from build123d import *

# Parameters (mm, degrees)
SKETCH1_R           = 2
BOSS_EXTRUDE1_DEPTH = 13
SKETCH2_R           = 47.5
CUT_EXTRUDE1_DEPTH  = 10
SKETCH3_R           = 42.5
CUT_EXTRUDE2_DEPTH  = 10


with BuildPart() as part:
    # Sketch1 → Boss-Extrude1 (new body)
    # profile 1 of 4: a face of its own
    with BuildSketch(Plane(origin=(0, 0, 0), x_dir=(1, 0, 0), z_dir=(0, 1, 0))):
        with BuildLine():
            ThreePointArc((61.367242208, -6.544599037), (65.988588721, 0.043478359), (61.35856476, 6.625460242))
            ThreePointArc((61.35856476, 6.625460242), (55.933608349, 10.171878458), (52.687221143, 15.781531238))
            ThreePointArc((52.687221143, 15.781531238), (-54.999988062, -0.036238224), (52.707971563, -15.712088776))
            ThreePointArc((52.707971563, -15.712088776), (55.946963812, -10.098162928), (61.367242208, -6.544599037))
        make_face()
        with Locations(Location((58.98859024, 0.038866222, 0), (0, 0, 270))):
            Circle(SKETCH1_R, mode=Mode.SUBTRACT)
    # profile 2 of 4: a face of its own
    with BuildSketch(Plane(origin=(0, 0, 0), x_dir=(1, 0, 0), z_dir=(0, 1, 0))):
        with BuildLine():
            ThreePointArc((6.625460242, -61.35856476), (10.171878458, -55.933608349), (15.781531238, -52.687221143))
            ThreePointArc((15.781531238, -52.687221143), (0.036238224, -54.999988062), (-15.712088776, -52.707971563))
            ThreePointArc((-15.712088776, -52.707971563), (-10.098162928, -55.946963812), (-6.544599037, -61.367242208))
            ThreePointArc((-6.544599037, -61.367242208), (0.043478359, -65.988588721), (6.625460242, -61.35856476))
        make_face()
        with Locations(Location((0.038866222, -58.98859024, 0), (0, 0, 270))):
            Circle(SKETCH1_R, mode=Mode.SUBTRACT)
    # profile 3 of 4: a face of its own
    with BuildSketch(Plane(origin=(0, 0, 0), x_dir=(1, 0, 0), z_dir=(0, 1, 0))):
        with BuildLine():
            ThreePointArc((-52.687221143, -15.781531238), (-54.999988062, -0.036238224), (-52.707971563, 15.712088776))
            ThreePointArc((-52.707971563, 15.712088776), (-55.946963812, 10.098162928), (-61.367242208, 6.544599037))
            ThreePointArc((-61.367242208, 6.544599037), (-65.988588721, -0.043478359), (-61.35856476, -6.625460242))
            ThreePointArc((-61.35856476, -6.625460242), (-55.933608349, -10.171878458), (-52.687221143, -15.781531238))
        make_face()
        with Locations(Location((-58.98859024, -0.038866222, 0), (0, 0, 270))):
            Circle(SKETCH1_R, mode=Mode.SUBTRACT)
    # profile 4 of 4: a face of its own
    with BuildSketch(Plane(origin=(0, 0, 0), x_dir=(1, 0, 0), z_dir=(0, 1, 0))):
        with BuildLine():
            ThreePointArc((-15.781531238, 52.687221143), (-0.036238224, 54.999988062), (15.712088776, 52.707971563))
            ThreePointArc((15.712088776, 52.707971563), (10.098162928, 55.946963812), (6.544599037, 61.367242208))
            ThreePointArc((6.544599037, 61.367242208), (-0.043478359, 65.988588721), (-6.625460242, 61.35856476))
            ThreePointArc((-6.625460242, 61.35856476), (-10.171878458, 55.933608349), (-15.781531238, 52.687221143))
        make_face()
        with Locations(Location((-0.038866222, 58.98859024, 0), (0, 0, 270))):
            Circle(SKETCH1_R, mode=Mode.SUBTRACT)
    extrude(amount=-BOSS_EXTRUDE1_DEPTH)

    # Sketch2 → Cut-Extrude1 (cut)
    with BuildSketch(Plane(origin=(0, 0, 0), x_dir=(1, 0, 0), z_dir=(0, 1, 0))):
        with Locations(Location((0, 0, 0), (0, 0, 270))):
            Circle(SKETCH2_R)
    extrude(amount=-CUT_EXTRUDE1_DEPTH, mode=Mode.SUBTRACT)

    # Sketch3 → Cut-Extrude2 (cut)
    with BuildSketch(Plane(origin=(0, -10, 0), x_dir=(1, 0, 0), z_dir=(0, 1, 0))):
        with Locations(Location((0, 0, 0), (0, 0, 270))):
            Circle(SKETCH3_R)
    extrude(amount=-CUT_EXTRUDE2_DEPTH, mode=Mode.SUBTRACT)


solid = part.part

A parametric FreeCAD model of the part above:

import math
import FreeCAD as App
import Part
import Sketcher
from FreeCAD import Vector

doc = App.newDocument("Part")
body = doc.addObject("PartDesign::Body", "Body")

# Sketch on XZ plane
sketch1 = body.newObject("Sketcher::SketchObject", "Sketch")
sketch1.AttachmentSupport = (doc.getObject("XZ_Plane"), [""])
sketch1.MapMode = "FlatFace"
sketch1.addGeometry([
    Part.ArcOfCircle(Part.Circle(Vector(58.98859, -0.038866, 0), Vector(0, 0, 1), 7), math.radians(-70.21036), math.radians(70.134858)),  # 0
    Part.ArcOfCircle(Part.Circle(Vector(66.098514, -19.798648, 0), Vector(0, 0, 1), 14), math.radians(109.78964), math.radians(163.325337)),  # 1
    Part.ArcOfCircle(Part.Circle(Vector(0, 0, 0), Vector(0, 0, 1), 55), math.radians(-73.400839), math.radians(-16.674663)),  # 2
    Part.ArcOfCircle(Part.Circle(Vector(19.71153, -66.124546, 0), Vector(0, 0, 1), 14), math.radians(106.599161), math.radians(160.134858)),  # 3
    Part.ArcOfCircle(Part.Circle(Vector(-0.038866, -58.98859, 0), Vector(0, 0, 1), 7), math.radians(-160.21036), math.radians(-19.865142)),  # 4
    Part.ArcOfCircle(Part.Circle(Vector(-19.798648, -66.098514, 0), Vector(0, 0, 1), 14), math.radians(19.78964), math.radians(73.325337)),  # 5
    Part.ArcOfCircle(Part.Circle(Vector(0, 0, 0), Vector(0, 0, 1), 55), math.radians(-163.400839), math.radians(-106.674663)),  # 6
    Part.ArcOfCircle(Part.Circle(Vector(-66.124546, -19.71153, 0), Vector(0, 0, 1), 14), math.radians(16.599161), math.radians(70.134858)),  # 7
    Part.ArcOfCircle(Part.Circle(Vector(-58.98859, 0.038866, 0), Vector(0, 0, 1), 7), math.radians(109.78964), math.radians(250.134858)),  # 8
    Part.ArcOfCircle(Part.Circle(Vector(-66.098514, 19.798648, 0), Vector(0, 0, 1), 14), math.radians(-70.21036), math.radians(-16.674663)),  # 9
    Part.ArcOfCircle(Part.Circle(Vector(0, 0, 0), Vector(0, 0, 1), 55), math.radians(106.599161), math.radians(163.325337)),  # 10
    Part.ArcOfCircle(Part.Circle(Vector(-19.71153, 66.124546, 0), Vector(0, 0, 1), 14), math.radians(-73.400839), math.radians(-19.865142)),  # 11
    Part.ArcOfCircle(Part.Circle(Vector(0.038866, 58.98859, 0), Vector(0, 0, 1), 7), math.radians(19.78964), math.radians(160.134858)),  # 12
    Part.ArcOfCircle(Part.Circle(Vector(19.798648, 66.098514, 0), Vector(0, 0, 1), 14), math.radians(-160.21036), math.radians(-106.674663)),  # 13
    Part.ArcOfCircle(Part.Circle(Vector(0, 0, 0), Vector(0, 0, 1), 55), math.radians(16.599161), math.radians(73.325337)),  # 14
    Part.ArcOfCircle(Part.Circle(Vector(66.124546, 19.71153, 0), Vector(0, 0, 1), 14), math.radians(-163.400839), math.radians(-109.865142)),  # 15
    Part.Circle(Vector(58.98859, -0.038866, 0), Vector(0, 0, 1), 2),  # 16
    Part.Circle(Vector(-0.038866, -58.98859, 0), Vector(0, 0, 1), 2),  # 17
    Part.Circle(Vector(-58.98859, 0.038866, 0), Vector(0, 0, 1), 2),  # 18
    Part.Circle(Vector(0.038866, 58.98859, 0), Vector(0, 0, 1), 2),  # 19
], False)
sketch1.addConstraint([
    Sketcher.Constraint("Tangent", 0, 1, 1, 1),
    Sketcher.Constraint("Tangent", 1, 2, 2, 2),
    Sketcher.Constraint("Tangent", 2, 1, 3, 1),
    Sketcher.Constraint("Tangent", 3, 2, 4, 2),
    Sketcher.Constraint("Tangent", 4, 1, 5, 1),
    Sketcher.Constraint("Tangent", 5, 2, 6, 2),
    Sketcher.Constraint("Tangent", 6, 1, 7, 1),
    Sketcher.Constraint("Tangent", 7, 2, 8, 2),
    Sketcher.Constraint("Tangent", 8, 1, 9, 1),
    Sketcher.Constraint("Tangent", 9, 2, 10, 2),
    Sketcher.Constraint("Tangent", 10, 1, 11, 1),
    Sketcher.Constraint("Tangent", 11, 2, 12, 2),
    Sketcher.Constraint("Tangent", 12, 1, 13, 1),
    Sketcher.Constraint("Tangent", 13, 2, 14, 2),
    Sketcher.Constraint("Tangent", 14, 1, 15, 1),
    Sketcher.Constraint("Tangent", 15, 2, 0, 2),
    Sketcher.Constraint("Coincident", 2, 3, -1, 1),
    Sketcher.Constraint("Coincident", 6, 3, -1, 1),
    Sketcher.Constraint("Coincident", 10, 3, -1, 1),
    Sketcher.Constraint("Coincident", 14, 3, -1, 1),
    Sketcher.Constraint("Coincident", 16, 3, 0, 3),
    Sketcher.Constraint("Coincident", 17, 3, 4, 3),
    Sketcher.Constraint("Coincident", 18, 3, 8, 3),
    Sketcher.Constraint("Coincident", 19, 3, 12, 3),
    Sketcher.Constraint("Equal", 1, 3),
    Sketcher.Constraint("Equal", 0, 4),
    Sketcher.Constraint("Equal", 3, 5),
    Sketcher.Constraint("Equal", 2, 6),
    Sketcher.Constraint("Equal", 5, 7),
    Sketcher.Constraint("Equal", 4, 8),
    Sketcher.Constraint("Equal", 7, 9),
    Sketcher.Constraint("Equal", 6, 10),
    Sketcher.Constraint("Equal", 9, 11),
    Sketcher.Constraint("Equal", 8, 12),
    Sketcher.Constraint("Equal", 11, 13),
    Sketcher.Constraint("Equal", 10, 14),
    Sketcher.Constraint("Equal", 13, 15),
    Sketcher.Constraint("Equal", 16, 17),
    Sketcher.Constraint("Equal", 17, 18),
    Sketcher.Constraint("Equal", 18, 19),
    Sketcher.Constraint("Symmetric", 0, 3, 8, 3, -1, 1),
    Sketcher.Constraint("Symmetric", 4, 3, 12, 3, -1, 1),
    Sketcher.Constraint("Diameter", 16, 4.0),
    Sketcher.Constraint("Radius", 0, 7.0),
    Sketcher.Constraint("Radius", 1, 14.0),
    Sketcher.Constraint("Radius", 2, 55.0),
    Sketcher.Constraint("DistanceX", -1, 1, 3, 2, 6.544599),
    Sketcher.Constraint("DistanceY", 7, 2, -1, 1, 6.544599),
    Sketcher.Constraint("DistanceX", -1, 1, 0, 3, 58.98859),
    Sketcher.Constraint("DistanceX", -1, 1, 3, 3, 19.71153),
])
pad1 = body.newObject("PartDesign::Pad", "Pad")
pad1.Profile = sketch1
pad1.Length = 13

# Sketch on XZ plane
sketch2 = body.newObject("Sketcher::SketchObject", "Sketch001")
sketch2.AttachmentSupport = (doc.getObject("XZ_Plane"), [""])
sketch2.MapMode = "FlatFace"
sketch2.addGeometry(Part.Circle(Vector(0, 0, 0), Vector(0, 0, 1), 47.5), False)
sketch2.addConstraint([
    Sketcher.Constraint("Coincident", 0, 3, -1, 1),
    Sketcher.Constraint("Diameter", 0, 95.0),
])
pocket1 = body.newObject("PartDesign::Pocket", "Pocket")
pocket1.Profile = sketch2
pocket1.Length = 10
pocket1.Reversed = True

# Sketch on XZ plane
sketch3 = body.newObject("Sketcher::SketchObject", "Sketch002")
sketch3.AttachmentSupport = (doc.getObject("XZ_Plane"), [""])
sketch3.MapMode = "FlatFace"
sketch3.AttachmentOffset = App.Placement(Vector(0, 0, 10), App.Rotation())
sketch3.addGeometry(Part.Circle(Vector(0, 0, 0), Vector(0, 0, 1), 42.5), False)
sketch3.addConstraint([
    Sketcher.Constraint("Coincident", 0, 3, -1, 1),
    Sketcher.Constraint("Diameter", 0, 85.0),
])
pocket2 = body.newObject("PartDesign::Pocket", "Pocket001")
pocket2.Profile = sketch3
pocket2.Length = 10
pocket2.Reversed = True

doc.recompute()
